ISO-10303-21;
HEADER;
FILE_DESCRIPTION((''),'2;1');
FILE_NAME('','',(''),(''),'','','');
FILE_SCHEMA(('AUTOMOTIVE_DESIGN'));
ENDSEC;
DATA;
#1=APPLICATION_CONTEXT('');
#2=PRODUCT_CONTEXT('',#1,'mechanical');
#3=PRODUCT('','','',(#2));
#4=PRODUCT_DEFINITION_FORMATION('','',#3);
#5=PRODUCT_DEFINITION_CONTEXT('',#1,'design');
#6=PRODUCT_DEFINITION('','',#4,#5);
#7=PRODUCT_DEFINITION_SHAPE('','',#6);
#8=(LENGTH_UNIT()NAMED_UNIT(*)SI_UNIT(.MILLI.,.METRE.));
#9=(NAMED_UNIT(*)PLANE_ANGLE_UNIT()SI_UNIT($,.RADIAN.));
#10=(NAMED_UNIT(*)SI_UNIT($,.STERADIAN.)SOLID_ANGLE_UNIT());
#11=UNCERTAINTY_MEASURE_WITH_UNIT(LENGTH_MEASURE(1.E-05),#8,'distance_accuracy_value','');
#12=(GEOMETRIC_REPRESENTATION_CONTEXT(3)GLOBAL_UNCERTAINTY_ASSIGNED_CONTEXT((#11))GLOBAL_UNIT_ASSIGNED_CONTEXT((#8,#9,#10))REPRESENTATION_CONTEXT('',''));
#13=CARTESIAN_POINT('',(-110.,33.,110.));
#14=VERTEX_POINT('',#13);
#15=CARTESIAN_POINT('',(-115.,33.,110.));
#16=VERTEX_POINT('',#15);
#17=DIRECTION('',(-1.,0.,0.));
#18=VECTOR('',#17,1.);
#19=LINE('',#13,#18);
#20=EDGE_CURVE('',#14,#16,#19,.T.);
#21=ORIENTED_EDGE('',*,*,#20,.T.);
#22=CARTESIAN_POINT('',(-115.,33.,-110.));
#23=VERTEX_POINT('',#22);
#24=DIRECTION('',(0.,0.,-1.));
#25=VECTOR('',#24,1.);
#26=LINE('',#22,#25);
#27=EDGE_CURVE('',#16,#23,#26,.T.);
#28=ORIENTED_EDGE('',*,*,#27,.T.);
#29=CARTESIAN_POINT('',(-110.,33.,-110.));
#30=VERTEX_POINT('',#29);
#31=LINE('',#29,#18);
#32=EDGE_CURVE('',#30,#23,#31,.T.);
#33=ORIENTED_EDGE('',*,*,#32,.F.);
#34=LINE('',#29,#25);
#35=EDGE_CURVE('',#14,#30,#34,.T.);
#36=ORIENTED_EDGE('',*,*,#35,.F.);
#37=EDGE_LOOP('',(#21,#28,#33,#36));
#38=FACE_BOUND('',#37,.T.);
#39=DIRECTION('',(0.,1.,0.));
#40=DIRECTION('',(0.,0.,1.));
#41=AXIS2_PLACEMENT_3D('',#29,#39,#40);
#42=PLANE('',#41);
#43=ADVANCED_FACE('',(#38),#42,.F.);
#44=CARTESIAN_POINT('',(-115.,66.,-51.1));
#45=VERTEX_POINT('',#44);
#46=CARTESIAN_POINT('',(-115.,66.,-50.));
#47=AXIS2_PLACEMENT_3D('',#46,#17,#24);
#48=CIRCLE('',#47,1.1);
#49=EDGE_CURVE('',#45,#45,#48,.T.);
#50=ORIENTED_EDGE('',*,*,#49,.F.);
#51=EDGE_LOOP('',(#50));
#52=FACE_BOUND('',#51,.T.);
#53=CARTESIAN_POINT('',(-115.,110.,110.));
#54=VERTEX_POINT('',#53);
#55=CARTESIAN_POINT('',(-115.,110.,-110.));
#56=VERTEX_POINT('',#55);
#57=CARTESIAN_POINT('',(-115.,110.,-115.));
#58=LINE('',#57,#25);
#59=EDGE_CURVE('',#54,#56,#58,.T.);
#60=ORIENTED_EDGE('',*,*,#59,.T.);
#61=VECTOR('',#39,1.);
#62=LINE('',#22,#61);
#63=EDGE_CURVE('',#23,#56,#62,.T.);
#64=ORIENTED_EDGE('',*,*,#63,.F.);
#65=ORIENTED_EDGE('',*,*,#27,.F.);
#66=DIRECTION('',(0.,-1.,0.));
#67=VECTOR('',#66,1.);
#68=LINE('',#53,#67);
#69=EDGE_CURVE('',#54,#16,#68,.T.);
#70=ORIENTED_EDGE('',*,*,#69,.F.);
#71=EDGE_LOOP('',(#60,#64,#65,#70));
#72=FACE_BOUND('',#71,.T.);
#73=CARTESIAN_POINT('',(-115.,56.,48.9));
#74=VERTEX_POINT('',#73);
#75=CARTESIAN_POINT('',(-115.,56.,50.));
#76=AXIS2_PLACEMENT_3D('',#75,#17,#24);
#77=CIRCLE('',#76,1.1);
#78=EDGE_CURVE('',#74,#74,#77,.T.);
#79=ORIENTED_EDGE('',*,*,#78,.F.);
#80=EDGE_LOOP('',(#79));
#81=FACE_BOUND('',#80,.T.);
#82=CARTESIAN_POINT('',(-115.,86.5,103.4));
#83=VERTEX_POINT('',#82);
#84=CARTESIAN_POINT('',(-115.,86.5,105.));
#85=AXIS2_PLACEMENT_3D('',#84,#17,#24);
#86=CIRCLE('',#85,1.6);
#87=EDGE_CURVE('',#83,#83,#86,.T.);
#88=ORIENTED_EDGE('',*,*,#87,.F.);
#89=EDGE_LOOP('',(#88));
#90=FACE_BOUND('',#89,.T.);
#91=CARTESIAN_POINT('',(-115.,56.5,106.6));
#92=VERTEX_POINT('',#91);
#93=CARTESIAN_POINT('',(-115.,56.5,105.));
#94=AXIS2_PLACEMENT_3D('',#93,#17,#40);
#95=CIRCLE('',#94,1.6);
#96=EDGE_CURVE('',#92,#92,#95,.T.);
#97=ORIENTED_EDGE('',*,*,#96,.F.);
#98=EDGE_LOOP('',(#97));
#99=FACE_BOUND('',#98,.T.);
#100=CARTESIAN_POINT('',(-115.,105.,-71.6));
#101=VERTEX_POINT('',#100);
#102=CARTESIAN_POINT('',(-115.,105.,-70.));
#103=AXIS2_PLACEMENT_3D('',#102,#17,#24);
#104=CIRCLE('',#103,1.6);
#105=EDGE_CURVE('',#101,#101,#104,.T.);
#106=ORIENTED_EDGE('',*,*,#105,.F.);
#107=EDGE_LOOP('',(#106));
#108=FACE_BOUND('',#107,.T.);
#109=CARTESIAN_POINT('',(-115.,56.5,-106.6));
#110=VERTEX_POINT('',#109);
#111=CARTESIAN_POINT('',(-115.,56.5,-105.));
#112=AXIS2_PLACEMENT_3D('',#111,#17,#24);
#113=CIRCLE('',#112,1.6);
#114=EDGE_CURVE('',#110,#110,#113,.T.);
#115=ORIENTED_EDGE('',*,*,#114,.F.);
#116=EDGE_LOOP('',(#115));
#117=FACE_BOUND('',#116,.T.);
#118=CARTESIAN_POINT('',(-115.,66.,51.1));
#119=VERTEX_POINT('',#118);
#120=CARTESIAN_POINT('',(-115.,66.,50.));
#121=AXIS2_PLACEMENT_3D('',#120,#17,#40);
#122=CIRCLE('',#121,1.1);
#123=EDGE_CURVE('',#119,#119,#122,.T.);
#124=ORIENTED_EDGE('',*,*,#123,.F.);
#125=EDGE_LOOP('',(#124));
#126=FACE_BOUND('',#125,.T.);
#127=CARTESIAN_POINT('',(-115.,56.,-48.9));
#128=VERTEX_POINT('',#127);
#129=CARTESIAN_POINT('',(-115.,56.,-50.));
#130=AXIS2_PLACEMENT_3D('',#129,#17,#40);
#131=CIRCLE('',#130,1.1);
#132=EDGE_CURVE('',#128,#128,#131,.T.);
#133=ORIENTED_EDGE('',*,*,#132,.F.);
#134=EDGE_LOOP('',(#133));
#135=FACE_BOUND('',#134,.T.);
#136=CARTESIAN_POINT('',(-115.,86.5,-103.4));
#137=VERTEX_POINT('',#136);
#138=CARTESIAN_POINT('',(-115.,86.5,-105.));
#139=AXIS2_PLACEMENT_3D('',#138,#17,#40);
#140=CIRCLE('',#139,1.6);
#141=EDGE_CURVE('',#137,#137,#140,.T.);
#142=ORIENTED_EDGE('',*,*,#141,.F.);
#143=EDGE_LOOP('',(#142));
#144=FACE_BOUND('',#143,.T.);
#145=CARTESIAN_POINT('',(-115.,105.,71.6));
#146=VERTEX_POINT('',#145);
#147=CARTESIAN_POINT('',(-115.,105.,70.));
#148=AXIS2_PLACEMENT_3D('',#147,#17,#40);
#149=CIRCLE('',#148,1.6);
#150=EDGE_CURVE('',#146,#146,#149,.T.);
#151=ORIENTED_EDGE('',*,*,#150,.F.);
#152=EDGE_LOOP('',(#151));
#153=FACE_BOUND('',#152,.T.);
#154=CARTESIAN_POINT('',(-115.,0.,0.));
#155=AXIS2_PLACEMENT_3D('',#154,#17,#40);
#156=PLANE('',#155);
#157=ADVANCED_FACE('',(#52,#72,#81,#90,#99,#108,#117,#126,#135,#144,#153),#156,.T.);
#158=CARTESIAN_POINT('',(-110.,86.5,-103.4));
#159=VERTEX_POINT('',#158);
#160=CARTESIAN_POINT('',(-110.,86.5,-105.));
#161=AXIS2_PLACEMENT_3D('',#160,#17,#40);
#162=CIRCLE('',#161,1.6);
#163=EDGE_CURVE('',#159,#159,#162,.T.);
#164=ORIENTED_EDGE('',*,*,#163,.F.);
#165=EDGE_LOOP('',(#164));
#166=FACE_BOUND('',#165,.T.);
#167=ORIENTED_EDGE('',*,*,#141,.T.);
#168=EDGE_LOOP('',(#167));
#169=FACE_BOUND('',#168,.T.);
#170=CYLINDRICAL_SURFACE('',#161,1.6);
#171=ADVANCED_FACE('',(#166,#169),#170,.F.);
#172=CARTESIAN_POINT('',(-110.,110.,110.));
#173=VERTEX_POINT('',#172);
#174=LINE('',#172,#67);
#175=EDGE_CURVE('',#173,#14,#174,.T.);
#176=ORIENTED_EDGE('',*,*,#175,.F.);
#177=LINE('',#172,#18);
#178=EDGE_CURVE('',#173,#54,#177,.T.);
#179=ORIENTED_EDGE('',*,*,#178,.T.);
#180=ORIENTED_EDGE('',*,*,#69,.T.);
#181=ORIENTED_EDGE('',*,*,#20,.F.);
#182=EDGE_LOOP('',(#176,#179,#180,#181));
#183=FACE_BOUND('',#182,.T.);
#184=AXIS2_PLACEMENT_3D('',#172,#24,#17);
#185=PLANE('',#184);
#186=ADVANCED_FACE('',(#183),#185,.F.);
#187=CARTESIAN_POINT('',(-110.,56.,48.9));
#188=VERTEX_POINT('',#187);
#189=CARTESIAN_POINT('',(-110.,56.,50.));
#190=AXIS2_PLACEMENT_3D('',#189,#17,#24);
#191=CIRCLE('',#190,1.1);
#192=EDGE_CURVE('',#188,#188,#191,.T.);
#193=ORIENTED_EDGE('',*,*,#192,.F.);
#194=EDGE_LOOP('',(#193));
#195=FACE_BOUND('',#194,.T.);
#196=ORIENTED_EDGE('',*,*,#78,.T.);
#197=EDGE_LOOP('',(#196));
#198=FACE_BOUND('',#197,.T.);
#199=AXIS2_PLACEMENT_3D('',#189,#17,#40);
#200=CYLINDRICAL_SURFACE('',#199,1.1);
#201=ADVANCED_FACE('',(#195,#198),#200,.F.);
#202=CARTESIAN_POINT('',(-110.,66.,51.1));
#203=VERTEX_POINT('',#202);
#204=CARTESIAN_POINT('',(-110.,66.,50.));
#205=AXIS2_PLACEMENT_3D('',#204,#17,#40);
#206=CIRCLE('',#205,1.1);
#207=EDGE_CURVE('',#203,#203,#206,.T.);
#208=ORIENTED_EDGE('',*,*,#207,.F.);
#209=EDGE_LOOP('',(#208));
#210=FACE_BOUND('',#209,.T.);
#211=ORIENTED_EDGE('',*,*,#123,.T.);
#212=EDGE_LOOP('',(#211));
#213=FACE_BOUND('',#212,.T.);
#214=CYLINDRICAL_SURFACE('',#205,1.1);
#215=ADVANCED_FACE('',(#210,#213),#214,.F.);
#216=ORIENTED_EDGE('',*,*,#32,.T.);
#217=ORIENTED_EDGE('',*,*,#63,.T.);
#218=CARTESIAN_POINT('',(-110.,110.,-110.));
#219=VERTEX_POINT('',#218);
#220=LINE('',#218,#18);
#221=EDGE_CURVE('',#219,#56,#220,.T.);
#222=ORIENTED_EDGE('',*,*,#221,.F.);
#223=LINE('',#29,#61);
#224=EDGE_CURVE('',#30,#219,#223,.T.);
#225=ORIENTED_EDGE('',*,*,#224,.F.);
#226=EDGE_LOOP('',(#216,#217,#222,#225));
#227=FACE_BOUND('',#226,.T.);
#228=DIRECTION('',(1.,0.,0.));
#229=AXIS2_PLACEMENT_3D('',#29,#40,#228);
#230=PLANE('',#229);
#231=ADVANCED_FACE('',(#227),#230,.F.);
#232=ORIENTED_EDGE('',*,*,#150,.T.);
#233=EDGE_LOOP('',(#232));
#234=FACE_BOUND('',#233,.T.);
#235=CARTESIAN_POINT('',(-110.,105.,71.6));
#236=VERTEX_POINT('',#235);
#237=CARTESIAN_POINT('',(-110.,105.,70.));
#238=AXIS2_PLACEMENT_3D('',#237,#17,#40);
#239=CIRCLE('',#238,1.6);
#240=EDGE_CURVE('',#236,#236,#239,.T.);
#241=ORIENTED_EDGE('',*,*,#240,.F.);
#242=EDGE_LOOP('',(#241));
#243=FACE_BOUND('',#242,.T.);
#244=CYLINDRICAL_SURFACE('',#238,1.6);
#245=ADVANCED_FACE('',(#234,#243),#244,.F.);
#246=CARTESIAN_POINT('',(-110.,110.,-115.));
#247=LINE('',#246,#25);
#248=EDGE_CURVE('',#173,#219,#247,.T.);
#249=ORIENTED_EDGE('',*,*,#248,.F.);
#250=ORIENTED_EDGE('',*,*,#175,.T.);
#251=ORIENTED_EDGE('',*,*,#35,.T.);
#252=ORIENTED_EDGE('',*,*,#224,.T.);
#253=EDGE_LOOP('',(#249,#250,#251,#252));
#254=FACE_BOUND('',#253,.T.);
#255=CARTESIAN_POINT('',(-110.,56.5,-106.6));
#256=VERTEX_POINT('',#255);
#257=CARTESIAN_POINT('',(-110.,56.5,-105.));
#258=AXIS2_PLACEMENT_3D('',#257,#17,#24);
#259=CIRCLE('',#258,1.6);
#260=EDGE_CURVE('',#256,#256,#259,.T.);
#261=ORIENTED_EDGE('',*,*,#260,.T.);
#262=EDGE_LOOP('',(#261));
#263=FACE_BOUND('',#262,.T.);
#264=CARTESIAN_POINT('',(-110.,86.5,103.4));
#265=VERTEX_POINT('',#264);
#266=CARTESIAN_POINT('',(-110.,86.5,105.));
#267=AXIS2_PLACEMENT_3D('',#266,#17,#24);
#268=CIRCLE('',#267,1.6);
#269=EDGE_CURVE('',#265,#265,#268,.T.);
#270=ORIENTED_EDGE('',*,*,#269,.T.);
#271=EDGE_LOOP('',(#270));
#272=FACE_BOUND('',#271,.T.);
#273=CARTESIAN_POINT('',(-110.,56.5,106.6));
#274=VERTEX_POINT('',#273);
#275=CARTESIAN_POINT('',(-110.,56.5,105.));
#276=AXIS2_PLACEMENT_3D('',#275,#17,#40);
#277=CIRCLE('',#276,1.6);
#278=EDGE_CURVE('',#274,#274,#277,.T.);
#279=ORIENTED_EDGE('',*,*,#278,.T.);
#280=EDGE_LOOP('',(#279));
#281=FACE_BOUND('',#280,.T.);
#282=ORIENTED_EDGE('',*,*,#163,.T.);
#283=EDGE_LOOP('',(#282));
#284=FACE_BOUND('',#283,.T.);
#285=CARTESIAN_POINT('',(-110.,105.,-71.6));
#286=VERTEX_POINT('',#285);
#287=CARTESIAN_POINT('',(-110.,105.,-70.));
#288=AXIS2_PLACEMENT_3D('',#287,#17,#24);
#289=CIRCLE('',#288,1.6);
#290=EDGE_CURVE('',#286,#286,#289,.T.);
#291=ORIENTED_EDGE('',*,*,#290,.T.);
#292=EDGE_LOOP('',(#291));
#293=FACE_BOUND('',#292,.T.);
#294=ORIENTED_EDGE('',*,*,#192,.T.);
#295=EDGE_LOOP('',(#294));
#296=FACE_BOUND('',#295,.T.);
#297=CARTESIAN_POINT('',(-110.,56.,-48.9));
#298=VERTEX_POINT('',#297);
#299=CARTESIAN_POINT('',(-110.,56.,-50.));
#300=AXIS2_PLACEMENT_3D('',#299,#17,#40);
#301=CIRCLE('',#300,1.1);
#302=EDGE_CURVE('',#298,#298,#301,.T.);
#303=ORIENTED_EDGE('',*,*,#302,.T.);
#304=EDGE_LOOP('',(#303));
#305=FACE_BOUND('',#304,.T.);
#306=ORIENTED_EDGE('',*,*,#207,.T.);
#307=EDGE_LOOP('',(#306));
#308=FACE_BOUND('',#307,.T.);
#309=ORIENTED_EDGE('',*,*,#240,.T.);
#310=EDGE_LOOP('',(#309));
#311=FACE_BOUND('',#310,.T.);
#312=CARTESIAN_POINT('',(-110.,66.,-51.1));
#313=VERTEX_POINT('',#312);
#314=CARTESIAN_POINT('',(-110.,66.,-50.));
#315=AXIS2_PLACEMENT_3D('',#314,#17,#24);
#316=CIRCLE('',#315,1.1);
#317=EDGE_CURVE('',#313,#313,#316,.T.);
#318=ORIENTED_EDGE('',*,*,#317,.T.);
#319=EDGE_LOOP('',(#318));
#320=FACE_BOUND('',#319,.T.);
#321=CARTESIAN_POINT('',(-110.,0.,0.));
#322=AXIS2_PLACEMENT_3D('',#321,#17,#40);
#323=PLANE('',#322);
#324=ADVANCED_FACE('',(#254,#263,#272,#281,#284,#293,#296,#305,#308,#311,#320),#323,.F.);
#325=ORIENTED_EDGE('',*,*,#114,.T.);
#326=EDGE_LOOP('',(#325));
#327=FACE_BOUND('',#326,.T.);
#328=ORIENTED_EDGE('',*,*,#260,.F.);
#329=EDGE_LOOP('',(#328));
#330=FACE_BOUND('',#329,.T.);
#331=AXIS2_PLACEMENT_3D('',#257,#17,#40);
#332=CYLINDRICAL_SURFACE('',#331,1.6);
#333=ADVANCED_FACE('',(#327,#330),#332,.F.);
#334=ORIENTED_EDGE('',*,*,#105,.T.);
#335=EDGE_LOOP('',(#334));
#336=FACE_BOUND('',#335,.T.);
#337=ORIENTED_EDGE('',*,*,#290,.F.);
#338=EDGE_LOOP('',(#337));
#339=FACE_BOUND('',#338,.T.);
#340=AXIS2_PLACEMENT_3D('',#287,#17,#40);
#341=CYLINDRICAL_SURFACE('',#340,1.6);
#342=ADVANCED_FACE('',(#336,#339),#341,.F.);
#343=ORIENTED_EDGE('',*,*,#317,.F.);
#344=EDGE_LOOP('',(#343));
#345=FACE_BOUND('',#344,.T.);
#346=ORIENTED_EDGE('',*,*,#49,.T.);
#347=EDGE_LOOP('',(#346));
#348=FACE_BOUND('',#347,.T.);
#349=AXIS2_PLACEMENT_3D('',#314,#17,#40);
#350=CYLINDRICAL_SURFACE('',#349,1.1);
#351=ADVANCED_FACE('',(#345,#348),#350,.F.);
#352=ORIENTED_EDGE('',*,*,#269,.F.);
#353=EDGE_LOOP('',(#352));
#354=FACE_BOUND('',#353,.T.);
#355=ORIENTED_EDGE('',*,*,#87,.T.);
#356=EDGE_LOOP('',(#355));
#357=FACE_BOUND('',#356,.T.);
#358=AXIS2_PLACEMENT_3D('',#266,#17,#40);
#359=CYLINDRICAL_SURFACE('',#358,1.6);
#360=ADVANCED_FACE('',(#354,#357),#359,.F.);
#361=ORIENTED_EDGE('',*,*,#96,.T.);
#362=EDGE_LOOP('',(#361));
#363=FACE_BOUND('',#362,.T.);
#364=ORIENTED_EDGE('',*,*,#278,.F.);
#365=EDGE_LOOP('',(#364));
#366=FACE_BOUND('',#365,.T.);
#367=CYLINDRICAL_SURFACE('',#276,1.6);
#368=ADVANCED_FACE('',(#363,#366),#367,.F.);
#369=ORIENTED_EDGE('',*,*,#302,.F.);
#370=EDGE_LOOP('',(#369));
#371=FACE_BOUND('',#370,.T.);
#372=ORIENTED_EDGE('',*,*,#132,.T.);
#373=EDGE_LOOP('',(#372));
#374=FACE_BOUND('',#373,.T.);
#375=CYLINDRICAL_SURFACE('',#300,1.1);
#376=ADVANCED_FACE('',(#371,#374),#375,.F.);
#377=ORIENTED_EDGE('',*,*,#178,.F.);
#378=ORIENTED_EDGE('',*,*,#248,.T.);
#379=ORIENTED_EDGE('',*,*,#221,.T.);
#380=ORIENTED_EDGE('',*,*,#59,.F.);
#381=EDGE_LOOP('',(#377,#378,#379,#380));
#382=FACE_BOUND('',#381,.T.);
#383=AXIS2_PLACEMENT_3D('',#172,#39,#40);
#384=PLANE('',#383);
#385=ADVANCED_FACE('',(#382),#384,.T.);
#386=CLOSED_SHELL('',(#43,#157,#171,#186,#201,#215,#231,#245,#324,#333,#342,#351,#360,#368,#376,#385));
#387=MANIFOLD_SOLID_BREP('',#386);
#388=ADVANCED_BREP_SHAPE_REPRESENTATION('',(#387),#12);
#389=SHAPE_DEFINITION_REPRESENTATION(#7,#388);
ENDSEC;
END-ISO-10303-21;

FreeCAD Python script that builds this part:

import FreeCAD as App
import Part
import Sketcher
Q = App.Units.Quantity


def edges_at(feature, points):
    """Names of the edges that pass closest to the given points."""
    edges = feature.Shape.Edges
    near = lambda p: min(range(len(edges)), key=lambda i: edges[i].distToShape(Part.Vertex(*p))[0])
    return sorted({f"Edge{near(p) + 1}" for p in points})

doc = App.newDocument("Part")
params = doc.addObject("Spreadsheet::Sheet", "Params")
for row, (alias, value) in enumerate([
    ("sketch1_width", "110 mm"),
    ("sketch1_height", "5 mm"),
    ("pad1_length", "120 mm"),
    ("pad1_length2", "110 mm"),
    ("sketch2_width", "110 mm"),
    ("sketch2_height", "5 mm"),
    ("pad2_length", "120 mm"),
    ("pad2_length2", "110 mm"),
    ("sketch3_width", "37 mm"),
    ("sketch3_height", "5 mm"),
    ("pad3_length", "50 mm"),
    ("sketch4_width", "5 mm"),
    ("sketch4_height", "220 mm"),
    ("pad4_length", "50 mm"),
    ("sketch5_width", "73 mm"),
    ("sketch5_height", "230 mm"),
    ("pad5_length", "5 mm"),
    ("sketch6_length", "5 mm"),
    ("sketch7_height", "110 mm"),
    ("sketch7_length", "5 mm"),
    ("pad6_length", "59 mm"),
    ("fillet_radius", "15 mm"),
    ("fillet2_radius", "3 mm"),
    ("sketch8_width", "348 mm"),
    ("sketch8_width2", "328 mm"),
    ("sketch8_height", "227 mm"),
    ("sketch8_height2", "207 mm"),
    ("pad7_length", "5 mm"),
    ("pad8_length", "5 mm"),
    ("pad9_length", "5 mm"),
    ("pad10_length", "165.048773 mm"),
    ("sketch12_width", "110 mm"),
    ("sketch12_width2", "77 mm"),
    ("sketch12_height", "230 mm"),
    ("sketch12_height2", "5 mm"),
    ("sketch13_diameter", "2.2 mm"),
    ("sketch14_diameter", "3.2 mm"),
], start=1):
    params.set(f"A{row}", alias)
    params.set(f"B{row}", "=" + value)
    params.setAlias(f"B{row}", alias)

body = doc.addObject("PartDesign::Body", "Body")

# Sketch on YZ plane
sketch1 = body.newObject("Sketcher::SketchObject", "Sketch")
sketch1.AttachmentSupport = (doc.getObject("YZ_Plane"), [""])
sketch1.MapMode = "FlatFace"
sketch1.addGeometry([
    Part.LineSegment(App.Vector(110, 115, 0), App.Vector(0, 115, 0)),
    Part.LineSegment(App.Vector(0, 115, 0), App.Vector(0, 110, 0)),
    Part.LineSegment(App.Vector(0, 110, 0), App.Vector(110, 110, 0)),
    Part.LineSegment(App.Vector(110, 110, 0), App.Vector(110, 115, 0)),
], False)
sketch1.addConstraint([
    Sketcher.Constraint("Coincident", 0, 2, 1, 1),
    Sketcher.Constraint("Coincident", 1, 2, 2, 1),
    Sketcher.Constraint("Coincident", 2, 2, 3, 1),
    Sketcher.Constraint("Coincident", 3, 2, 0, 1),
    Sketcher.Constraint("Horizontal", 0),
    Sketcher.Constraint("Vertical", 1),
    Sketcher.Constraint("Horizontal", 2),
    Sketcher.Constraint("Vertical", 3),
    Sketcher.Constraint("PointOnObject", 0, 2, -2),
    Sketcher.Constraint("DistanceX", 0, 2, 0, 1, Q("110 mm")),
    Sketcher.Constraint("DistanceY", 1, 2, 1, 1, Q("5 mm")),
    Sketcher.Constraint("DistanceY", -1, 1, 0, 2, Q("115 mm")),
])
sketch1.setExpression("Constraints[9]", "Params.sketch1_width")
sketch1.setExpression("Constraints[10]", "Params.sketch1_height")
pad1 = body.newObject("PartDesign::Pad", "Pad")
pad1.Profile = sketch1
pad1.Type = "TwoLengths"
pad1.setExpression("Length", "Params.pad1_length")
pad1.setExpression("Length2", "Params.pad1_length2")
body2 = doc.addObject("PartDesign::Body", "Body001")

# Sketch on YZ plane
sketch2 = body2.newObject("Sketcher::SketchObject", "Sketch001")
sketch2.AttachmentSupport = (doc.getObject("YZ_Plane001"), [""])
sketch2.MapMode = "FlatFace"
sketch2.addGeometry([
    Part.LineSegment(App.Vector(110, -110, 0), App.Vector(0, -110, 0)),
    Part.LineSegment(App.Vector(0, -110, 0), App.Vector(0, -115, 0)),
    Part.LineSegment(App.Vector(0, -115, 0), App.Vector(110, -115, 0)),
    Part.LineSegment(App.Vector(110, -115, 0), App.Vector(110, -110, 0)),
], False)
sketch2.addConstraint([
    Sketcher.Constraint("Coincident", 0, 2, 1, 1),
    Sketcher.Constraint("Coincident", 1, 2, 2, 1),
    Sketcher.Constraint("Coincident", 2, 2, 3, 1),
    Sketcher.Constraint("Coincident", 3, 2, 0, 1),
    Sketcher.Constraint("Horizontal", 0),
    Sketcher.Constraint("Vertical", 1),
    Sketcher.Constraint("Horizontal", 2),
    Sketcher.Constraint("Vertical", 3),
    Sketcher.Constraint("PointOnObject", 0, 2, -2),
    Sketcher.Constraint("DistanceX", 0, 2, 0, 1, Q("110 mm")),
    Sketcher.Constraint("DistanceY", 1, 2, 1, 1, Q("5 mm")),
    Sketcher.Constraint("DistanceY", 0, 2, -1, 1, Q("110 mm")),
])
sketch2.setExpression("Constraints[9]", "Params.sketch2_width")
sketch2.setExpression("Constraints[10]", "Params.sketch2_height")
pad2 = body2.newObject("PartDesign::Pad", "Pad001")
pad2.Profile = sketch2
pad2.Type = "TwoLengths"
pad2.setExpression("Length", "Params.pad2_length")
pad2.setExpression("Length2", "Params.pad2_length2")
body.AllowCompound = True
doc.recompute()

boolean = body.newObject("PartDesign::Boolean", "Boolean")
boolean.Type = "Fuse"
boolean.addObjects([body2])

# Sketch on YZ plane
sketch3 = body.newObject("Sketcher::SketchObject", "Sketch002")
sketch3.AttachmentSupport = (doc.getObject("YZ_Plane"), [""])
sketch3.MapMode = "FlatFace"
sketch3.AttachmentOffset = App.Placement(App.Vector(0, 0, -110), App.Rotation())
sketch3.addGeometry([
    Part.LineSegment(App.Vector(37, -115, 0), App.Vector(0, -115, 0)),  # 0
    Part.LineSegment(App.Vector(0, -115, 0), App.Vector(0, -110, 0)),  # 1
    Part.LineSegment(App.Vector(0, -110, 0), App.Vector(37, -110, 0)),  # 2
    Part.LineSegment(App.Vector(37, -110, 0), App.Vector(37, -115, 0)),  # 3
    Part.LineSegment(App.Vector(37, 110, 0), App.Vector(0, 110, 0)),  # 4
    Part.LineSegment(App.Vector(0, 110, 0), App.Vector(0, 115, 0)),  # 5
    Part.LineSegment(App.Vector(0, 115, 0), App.Vector(37, 115, 0)),  # 6
    Part.LineSegment(App.Vector(37, 115, 0), App.Vector(37, 110, 0)),  # 7
], False)
sketch3.addConstraint([
    Sketcher.Constraint("Coincident", 0, 2, 1, 1),
    Sketcher.Constraint("Coincident", 1, 2, 2, 1),
    Sketcher.Constraint("Coincident", 2, 2, 3, 1),
    Sketcher.Constraint("Coincident", 3, 2, 0, 1),
    Sketcher.Constraint("Coincident", 4, 2, 5, 1),
    Sketcher.Constraint("Coincident", 5, 2, 6, 1),
    Sketcher.Constraint("Coincident", 6, 2, 7, 1),
    Sketcher.Constraint("Coincident", 7, 2, 4, 1),
    Sketcher.Constraint("Horizontal", 0),
    Sketcher.Constraint("Vertical", 1),
    Sketcher.Constraint("Horizontal", 2),
    Sketcher.Constraint("Vertical", 3),
    Sketcher.Constraint("Horizontal", 4),
    Sketcher.Constraint("Vertical", 5),
    Sketcher.Constraint("Horizontal", 6),
    Sketcher.Constraint("Vertical", 7),
    Sketcher.Constraint("Symmetric", 1, 2, 4, 2, -1, 1),
    Sketcher.Constraint("Symmetric", 0, 2, 5, 2, -1),
    Sketcher.Constraint("Vertical", 3, 2, 6, 2),
    Sketcher.Constraint("DistanceX", 0, 2, 0, 1, Q("37 mm")),
    Sketcher.Constraint("DistanceY", 1, 1, 1, 2, Q("5 mm")),
    Sketcher.Constraint("DistanceY", 0, 2, -1, 1, Q("115 mm")),
])
sketch3.setExpression("Constraints[19]", "Params.sketch3_width")
sketch3.setExpression("Constraints[20]", "Params.sketch3_height")
pad3 = body.newObject("PartDesign::Pad", "Pad002")
pad3.Profile = sketch3
pad3.setExpression("Length", "Params.pad3_length")
pad3.Reversed = True

# Sketch on YZ plane
sketch4 = body.newObject("Sketcher::SketchObject", "Sketch003")
sketch4.AttachmentSupport = (doc.getObject("YZ_Plane"), [""])
sketch4.MapMode = "FlatFace"
sketch4.AttachmentOffset = App.Placement(App.Vector(0, 0, -160), App.Rotation())
sketch4.addGeometry([
    Part.LineSegment(App.Vector(37, -110, 0), App.Vector(32, -110, 0)),
    Part.LineSegment(App.Vector(32, -110, 0), App.Vector(32, 110, 0)),
    Part.LineSegment(App.Vector(32, 110, 0), App.Vector(37, 110, 0)),
    Part.LineSegment(App.Vector(37, 110, 0), App.Vector(37, -110, 0)),
], False)
sketch4.addConstraint([
    Sketcher.Constraint("Coincident", 0, 2, 1, 1),
    Sketcher.Constraint("Coincident", 1, 2, 2, 1),
    Sketcher.Constraint("Coincident", 2, 2, 3, 1),
    Sketcher.Constraint("Coincident", 3, 2, 0, 1),
    Sketcher.Constraint("Horizontal", 0),
    Sketcher.Constraint("Vertical", 1),
    Sketcher.Constraint("Horizontal", 2),
    Sketcher.Constraint("Vertical", 3),
    Sketcher.Constraint("DistanceX", 0, 2, 0, 1, Q("5 mm")),
    Sketcher.Constraint("DistanceY", 1, 1, 1, 2, Q("220 mm")),
    Sketcher.Constraint("DistanceX", -1, 1, 0, 2, Q("32 mm")),
    Sketcher.Constraint("DistanceY", 0, 2, -1, 1, Q("110 mm")),
])
sketch4.setExpression("Constraints[8]", "Params.sketch4_width")
sketch4.setExpression("Constraints[9]", "Params.sketch4_height")
pad4 = body.newObject("PartDesign::Pad", "Pad003")
pad4.Profile = sketch4
pad4.setExpression("Length", "Params.pad4_length")

# Sketch on YZ plane
sketch5 = body.newObject("Sketcher::SketchObject", "Sketch004")
sketch5.AttachmentSupport = (doc.getObject("YZ_Plane"), [""])
sketch5.MapMode = "FlatFace"
sketch5.AttachmentOffset = App.Placement(App.Vector(0, 0, -110), App.Rotation())
sketch5.addGeometry([
    Part.LineSegment(App.Vector(110, -115, 0), App.Vector(37, -115, 0)),
    Part.LineSegment(App.Vector(37, -115, 0), App.Vector(37, 115, 0)),
    Part.LineSegment(App.Vector(37, 115, 0), App.Vector(110, 115, 0)),
    Part.LineSegment(App.Vector(110, 115, 0), App.Vector(110, -115, 0)),
], False)
sketch5.addConstraint([
    Sketcher.Constraint("Coincident", 0, 2, 1, 1),
    Sketcher.Constraint("Coincident", 1, 2, 2, 1),
    Sketcher.Constraint("Coincident", 2, 2, 3, 1),
    Sketcher.Constraint("Coincident", 3, 2, 0, 1),
    Sketcher.Constraint("Horizontal", 0),
    Sketcher.Constraint("Vertical", 1),
    Sketcher.Constraint("Horizontal", 2),
    Sketcher.Constraint("Vertical", 3),
    Sketcher.Constraint("DistanceX", 0, 2, 0, 1, Q("73 mm")),
    Sketcher.Constraint("DistanceY", 1, 1, 1, 2, Q("230 mm")),
    Sketcher.Constraint("DistanceX", -1, 1, 0, 2, Q("37 mm")),
    Sketcher.Constraint("DistanceY", 0, 2, -1, 1, Q("115 mm")),
])
sketch5.setExpression("Constraints[8]", "Params.sketch5_width")
sketch5.setExpression("Constraints[9]", "Params.sketch5_height")
pad5 = body.newObject("PartDesign::Pad", "Pad004")
pad5.Profile = sketch5
pad5.setExpression("Length", "Params.pad5_length")
pad5.Reversed = True

# Sketch on XY plane
sketch6 = body.newObject("Sketcher::SketchObject", "Sketch005")
sketch6.AttachmentSupport = (doc.getObject("XY_Plane"), [""])
sketch6.MapMode = "FlatFace"
sketch6.AttachmentOffset = App.Placement(App.Vector(0, 0, 115), App.Rotation())
sketch6.addGeometry([
    Part.LineSegment(App.Vector(120, 110, 0), App.Vector(116.464466, 106.464466, 0)),
    Part.LineSegment(App.Vector(116.464466, 106.464466, 0), App.Vector(120, 102.928932, 0)),
    Part.LineSegment(App.Vector(120, 102.928932, 0), App.Vector(120, 110, 0)),
], False)
sketch6.addConstraint([
    Sketcher.Constraint("Coincident", 0, 2, 1, 1),
    Sketcher.Constraint("Coincident", 1, 2, 2, 1),
    Sketcher.Constraint("Coincident", 2, 2, 0, 1),
    Sketcher.Constraint("Vertical", 2),
    Sketcher.Constraint("Perpendicular", 0, 1),
    Sketcher.Constraint("Equal", 0, 1),
    Sketcher.Constraint("Distance", 0, Q("5 mm")),
    Sketcher.Constraint("DistanceX", -1, 1, 1, 2, Q("120 mm")),
    Sketcher.Constraint("DistanceY", -1, 1, 2, 2, Q("110 mm")),
])
sketch6.setExpression("Constraints[6]", "Params.sketch6_length")
pocket1 = body.newObject("PartDesign::Pocket", "Pocket")
pocket1.Profile = sketch6
pocket1.Type = "ThroughAll"

# Sketch on XY plane
sketch7 = body.newObject("Sketcher::SketchObject", "Sketch006")
sketch7.AttachmentSupport = (doc.getObject("XY_Plane"), [""])
sketch7.MapMode = "FlatFace"
sketch7.AttachmentOffset = App.Placement(App.Vector(0, 0, 115), App.Rotation())
sketch7.addGeometry([
    Part.LineSegment(App.Vector(120, 110, 0), App.Vector(111.464466, 110, 0)),  # 0
    Part.LineSegment(App.Vector(111.464466, 110, 0), App.Vector(111.464466, 0, 0)),  # 1
    Part.LineSegment(App.Vector(111.464466, 0, 0), App.Vector(120, 0, 0)),  # 2
    Part.LineSegment(App.Vector(120, 0, 0), App.Vector(120, 102.928932, 0)),  # 3
    Part.LineSegment(App.Vector(120, 102.928932, 0), App.Vector(116.464466, 106.464466, 0)),  # 4
    Part.LineSegment(App.Vector(116.464466, 106.464466, 0), App.Vector(120, 110, 0)),  # 5
], False)
sketch7.addConstraint([
    Sketcher.Constraint("Coincident", 0, 2, 1, 1),
    Sketcher.Constraint("Coincident", 1, 2, 2, 1),
    Sketcher.Constraint("Coincident", 2, 2, 3, 1),
    Sketcher.Constraint("Coincident", 3, 2, 4, 1),
    Sketcher.Constraint("Coincident", 4, 2, 5, 1),
    Sketcher.Constraint("Coincident", 5, 2, 0, 1),
    Sketcher.Constraint("Horizontal", 0),
    Sketcher.Constraint("Vertical", 1),
    Sketcher.Constraint("Horizontal", 2),
    Sketcher.Constraint("Vertical", 3),
    Sketcher.Constraint("PointOnObject", 1, 2, -1),
    Sketcher.Constraint("Perpendicular", 4, 5),
    Sketcher.Constraint("Vertical", 3, 2, 5, 2),
    Sketcher.Constraint("Equal", 4, 5),
    Sketcher.Constraint("DistanceY", 1, 2, 1, 1, Q("110 mm")),
    Sketcher.Constraint("Distance", 4, Q("5 mm")),
    Sketcher.Constraint("DistanceX", -1, 1, 2, 2, Q("120 mm")),
    Sketcher.Constraint("DistanceX", 0, 2, 4, 2, Q("5 mm")),
])
sketch7.setExpression("Constraints[14]", "Params.sketch7_height")
sketch7.setExpression("Constraints[15]", "Params.sketch7_length")
pad6 = body.newObject("PartDesign::Pad", "Pad005")
pad6.Profile = sketch7
pad6.setExpression("Length", "Params.pad6_length")
doc.recompute()

mirrored = body.newObject("PartDesign::Mirrored", "Mirrored")
mirrored.Originals = [pad6]
mirrored.MirrorPlane = (doc.getObject("XY_Plane"), [""])
body.Tip = mirrored
doc.recompute()

fillet = body.newObject("PartDesign::Fillet", "Fillet")
fillet.Base = (mirrored, edges_at(mirrored, [(111.464, 55, 115), (111.464, 55, -115)]))
fillet.setExpression("Radius", "Params.fillet_radius")
doc.recompute()

fillet2 = body.newObject("PartDesign::Fillet", "Fillet001")
fillet2.Base = (fillet, edges_at(fillet, [(111.464, 55, 174), (111.464, 55, -174)]))
fillet2.setExpression("Radius", "Params.fillet2_radius")
body3 = doc.addObject("PartDesign::Body", "Body002")

# Sketch on an angled plane
sketch8 = body3.newObject("Sketcher::SketchObject", "Sketch007")
sketch8.Placement = App.Placement(App.Vector(115, 115, 0), App.Rotation(App.Vector(0, 0, 1), App.Vector(-0.707106781, 0.707106781, 0), App.Vector(-0.707106781, -0.707106781, 0), "ZXY"))
sketch8.addGeometry([
    Part.LineSegment(App.Vector(-174, -7.071068, 0), App.Vector(-174, -234.071068, 0)),  # 0
    Part.LineSegment(App.Vector(-174, -234.071068, 0), App.Vector(174, -234.071068, 0)),  # 1
    Part.LineSegment(App.Vector(174, -234.071068, 0), App.Vector(174, -7.071068, 0)),  # 2
    Part.LineSegment(App.Vector(174, -7.071068, 0), App.Vector(-174, -7.071068, 0)),  # 3
    Part.LineSegment(App.Vector(164, -224.071068, 0), App.Vector(-164, -224.071068, 0)),  # 4
    Part.LineSegment(App.Vector(-164, -224.071068, 0), App.Vector(-164, -17.071068, 0)),  # 5
    Part.LineSegment(App.Vector(-164, -17.071068, 0), App.Vector(164, -17.071068, 0)),  # 6
    Part.LineSegment(App.Vector(164, -17.071068, 0), App.Vector(164, -224.071068, 0)),  # 7
], False)
sketch8.addConstraint([
    Sketcher.Constraint("Coincident", 0, 2, 1, 1),
    Sketcher.Constraint("Coincident", 1, 2, 2, 1),
    Sketcher.Constraint("Coincident", 2, 2, 3, 1),
    Sketcher.Constraint("Coincident", 3, 2, 0, 1),
    Sketcher.Constraint("Coincident", 4, 2, 5, 1),
    Sketcher.Constraint("Coincident", 5, 2, 6, 1),
    Sketcher.Constraint("Coincident", 6, 2, 7, 1),
    Sketcher.Constraint("Coincident", 7, 2, 4, 1),
    Sketcher.Constraint("Vertical", 0),
    Sketcher.Constraint("Horizontal", 1),
    Sketcher.Constraint("Vertical", 2),
    Sketcher.Constraint("Horizontal", 3),
    Sketcher.Constraint("Horizontal", 4),
    Sketcher.Constraint("Vertical", 5),
    Sketcher.Constraint("Horizontal", 6),
    Sketcher.Constraint("Vertical", 7),
    Sketcher.Constraint("DistanceX", 1, 1, 1, 2, Q("348 mm")),
    Sketcher.Constraint("DistanceX", 4, 2, 4, 1, Q("328 mm")),
    Sketcher.Constraint("DistanceY", 0, 2, 0, 1, Q("227 mm")),
    Sketcher.Constraint("DistanceY", 5, 1, 5, 2, Q("207 mm")),
    Sketcher.Constraint("DistanceX", 0, 2, -1, 1, Q("174 mm")),
    Sketcher.Constraint("DistanceX", 4, 2, -1, 1, Q("164 mm")),
    Sketcher.Constraint("DistanceY", 0, 2, 4, 2, Q("10 mm")),
    Sketcher.Constraint("DistanceY", 0, 2, -1, 1, Q("234.071068 mm")),
])
sketch8.setExpression("Constraints[16]", "Params.sketch8_width")
sketch8.setExpression("Constraints[17]", "Params.sketch8_width2")
sketch8.setExpression("Constraints[18]", "Params.sketch8_height")
sketch8.setExpression("Constraints[19]", "Params.sketch8_height2")
pad7 = body3.newObject("PartDesign::Pad", "Pad006")
pad7.Profile = sketch8
pad7.setExpression("Length", "Params.pad7_length")
body4 = doc.addObject("PartDesign::Body", "Body003")

# Sketch on XY plane
sketch9 = body4.newObject("Sketcher::SketchObject", "Sketch008")
sketch9.AttachmentSupport = (doc.getObject("XY_Plane003"), [""])
sketch9.MapMode = "FlatFace"
sketch9.AttachmentOffset = App.Placement(App.Vector(0, 0, 174), App.Rotation())
sketch9.addGeometry([
    Part.LineSegment(App.Vector(120, 0, 0), App.Vector(222.928932, 0, 0)),
    Part.LineSegment(App.Vector(222.928932, 0, 0), App.Vector(120, 102.928932, 0)),
    Part.LineSegment(App.Vector(120, 102.928932, 0), App.Vector(120, 0, 0)),
], False)
sketch9.addConstraint([
    Sketcher.Constraint("Coincident", 0, 2, 1, 1),
    Sketcher.Constraint("Coincident", 1, 2, 2, 1),
    Sketcher.Constraint("Coincident", 2, 2, 0, 1),
    Sketcher.Constraint("Horizontal", 0),
    Sketcher.Constraint("Vertical", 2),
    Sketcher.Constraint("PointOnObject", 0, 2, -1),
    Sketcher.Constraint("Equal", 0, 2),
    Sketcher.Constraint("DistanceX", -1, 1, 1, 2, Q("120 mm")),
    Sketcher.Constraint("Distance", 1, Q("145.563492 mm")),
])
pad8 = body4.newObject("PartDesign::Pad", "Pad007")
pad8.Profile = sketch9
pad8.setExpression("Length", "Params.pad8_length")
pad8.Reversed = True
body5 = doc.addObject("PartDesign::Body", "Body004")

# Sketch on XY plane
sketch10 = body5.newObject("Sketcher::SketchObject", "Sketch009")
sketch10.AttachmentSupport = (doc.getObject("XY_Plane004"), [""])
sketch10.MapMode = "FlatFace"
sketch10.AttachmentOffset = App.Placement(App.Vector(0, 0, -174), App.Rotation())
sketch10.addGeometry([
    Part.LineSegment(App.Vector(120, 0, 0), App.Vector(120, 102.928932, 0)),
    Part.LineSegment(App.Vector(120, 102.928932, 0), App.Vector(222.928932, 0, 0)),
    Part.LineSegment(App.Vector(222.928932, 0, 0), App.Vector(120, 0, 0)),
], False)
sketch10.addConstraint([
    Sketcher.Constraint("Coincident", 0, 2, 1, 1),
    Sketcher.Constraint("Coincident", 1, 2, 2, 1),
    Sketcher.Constraint("Coincident", 2, 2, 0, 1),
    Sketcher.Constraint("Vertical", 0),
    Sketcher.Constraint("Horizontal", 2),
    Sketcher.Constraint("PointOnObject", 1, 2, -1),
    Sketcher.Constraint("Equal", 2, 0),
    Sketcher.Constraint("DistanceX", -1, 1, 0, 2, Q("120 mm")),
    Sketcher.Constraint("Distance", 1, Q("145.563492 mm")),
])
pad9 = body5.newObject("PartDesign::Pad", "Pad008")
pad9.Profile = sketch10
pad9.setExpression("Length", "Params.pad9_length")
body6 = doc.addObject("PartDesign::Body", "Body005")
body6.AllowCompound = True

# Sketch on XZ plane
sketch11 = body6.newObject("Sketcher::SketchObject", "Sketch010")
sketch11.AttachmentSupport = (doc.getObject("XZ_Plane005"), [""])
sketch11.MapMode = "FlatFace"
sketch11.AttachmentOffset = App.Placement(App.Vector(0, 0, -110), App.Rotation())
sketch11.addGeometry([
    Part.LineSegment(App.Vector(-110, -193.761158, 0), App.Vector(-110, 200.602059, 0)),  # 0
    Part.LineSegment(App.Vector(-110, 200.602059, 0), App.Vector(365.223312, 200.602059, 0)),  # 1
    Part.LineSegment(App.Vector(365.223312, 200.602059, 0), App.Vector(365.223312, -193.761158, 0)),  # 2
    Part.LineSegment(App.Vector(365.223312, -193.761158, 0), App.Vector(-110, -193.761158, 0)),  # 3
    Part.LineSegment(App.Vector(-217.087253, -193.761158, 0), App.Vector(-217.087253, 200.602059, 0)),  # 4
    Part.LineSegment(App.Vector(-217.087253, 200.602059, 0), App.Vector(-115, 200.602059, 0)),  # 5
    Part.LineSegment(App.Vector(-115, 200.602059, 0), App.Vector(-115, -193.761158, 0)),  # 6
    Part.LineSegment(App.Vector(-115, -193.761158, 0), App.Vector(-217.087253, -193.761158, 0)),  # 7
], False)
sketch11.addConstraint([
    Sketcher.Constraint("Coincident", 0, 2, 1, 1),
    Sketcher.Constraint("Coincident", 1, 2, 2, 1),
    Sketcher.Constraint("Coincident", 2, 2, 3, 1),
    Sketcher.Constraint("Coincident", 3, 2, 0, 1),
    Sketcher.Constraint("Coincident", 4, 2, 5, 1),
    Sketcher.Constraint("Coincident", 5, 2, 6, 1),
    Sketcher.Constraint("Coincident", 6, 2, 7, 1),
    Sketcher.Constraint("Coincident", 7, 2, 4, 1),
    Sketcher.Constraint("Vertical", 0),
    Sketcher.Constraint("Horizontal", 1),
    Sketcher.Constraint("Vertical", 2),
    Sketcher.Constraint("Horizontal", 3),
    Sketcher.Constraint("Vertical", 4),
    Sketcher.Constraint("Horizontal", 5),
    Sketcher.Constraint("Vertical", 6),
    Sketcher.Constraint("Horizontal", 7),
    Sketcher.Constraint("Horizontal", 1, 2, 4, 2),
    Sketcher.Constraint("Horizontal", 3, 2, 6, 2),
    Sketcher.Constraint("DistanceX", 0, 2, -1, 1, Q("110 mm")),
    Sketcher.Constraint("DistanceX", 5, 2, -1, 1, Q("115 mm")),
    Sketcher.Constraint("DistanceX", 1, 1, 1, 2, Q("475.223312 mm")),
    Sketcher.Constraint("DistanceX", 5, 1, 5, 2, Q("102.087253 mm")),
    Sketcher.Constraint("DistanceY", 0, 1, 0, 2, Q("394.363217 mm")),
    Sketcher.Constraint("DistanceY", -1, 1, 0, 2, Q("200.602059 mm")),
])
pad10 = body6.newObject("PartDesign::Pad", "Pad009")
pad10.Profile = sketch11
pad10.setExpression("Length", "Params.pad10_length")
doc.recompute()

body7 = doc.addObject("PartDesign::Body", "Body006")
body7.BaseFeature = body6
boolean2 = body.newObject("PartDesign::Boolean", "Boolean001")
boolean2.Type = "Cut"
boolean2.addObjects([body7])
doc.recompute()

# Sketch on YZ plane
sketch12 = body.newObject("Sketcher::SketchObject", "Sketch011")
sketch12.AttachmentSupport = (doc.getObject("YZ_Plane"), [""])
sketch12.MapMode = "FlatFace"
sketch12.AttachmentOffset = App.Placement(App.Vector(0, 0, -115), App.Rotation())
sketch12.addGeometry([
    Part.LineSegment(App.Vector(0, -115, 0), App.Vector(0, 115, 0)),  # 0
    Part.LineSegment(App.Vector(0, 115, 0), App.Vector(110, 115, 0)),  # 1
    Part.LineSegment(App.Vector(110, 115, 0), App.Vector(110, 110, 0)),  # 2
    Part.LineSegment(App.Vector(110, 110, 0), App.Vector(33, 110, 0)),  # 3
    Part.LineSegment(App.Vector(33, 110, 0), App.Vector(33, -110, 0)),  # 4
    Part.LineSegment(App.Vector(33, -110, 0), App.Vector(110, -110, 0)),  # 5
    Part.LineSegment(App.Vector(110, -110, 0), App.Vector(110, -115, 0)),  # 6
    Part.LineSegment(App.Vector(110, -115, 0), App.Vector(0, -115, 0)),  # 7
], False)
sketch12.addConstraint([
    Sketcher.Constraint("Coincident", 0, 2, 1, 1),
    Sketcher.Constraint("Coincident", 1, 2, 2, 1),
    Sketcher.Constraint("Coincident", 2, 2, 3, 1),
    Sketcher.Constraint("Coincident", 3, 2, 4, 1),
    Sketcher.Constraint("Coincident", 4, 2, 5, 1),
    Sketcher.Constraint("Coincident", 5, 2, 6, 1),
    Sketcher.Constraint("Coincident", 6, 2, 7, 1),
    Sketcher.Constraint("Coincident", 7, 2, 0, 1),
    Sketcher.Constraint("Vertical", 0),
    Sketcher.Constraint("Horizontal", 1),
    Sketcher.Constraint("Vertical", 2),
    Sketcher.Constraint("Horizontal", 3),
    Sketcher.Constraint("Vertical", 4),
    Sketcher.Constraint("Horizontal", 5),
    Sketcher.Constraint("Vertical", 6),
    Sketcher.Constraint("Horizontal", 7),
    Sketcher.Constraint("Symmetric", 0, 2, 7, 2, -1, 1),
    Sketcher.Constraint("Symmetric", 2, 2, 5, 2, -1),
    Sketcher.Constraint("DistanceX", 1, 1, 1, 2, Q("110 mm")),
    Sketcher.Constraint("DistanceX", 3, 2, 3, 1, Q("77 mm")),
    Sketcher.Constraint("DistanceY", 0, 1, 0, 2, Q("230 mm")),
    Sketcher.Constraint("DistanceY", 2, 2, 2, 1, Q("5 mm")),
])
sketch12.setExpression("Constraints[18]", "Params.sketch12_width")
sketch12.setExpression("Constraints[19]", "Params.sketch12_width2")
sketch12.setExpression("Constraints[20]", "Params.sketch12_height")
sketch12.setExpression("Constraints[21]", "Params.sketch12_height2")
pocket2 = body.newObject("PartDesign::Pocket", "Pocket001")
pocket2.Profile = sketch12
pocket2.Type = "ThroughAll"
pocket2.Reversed = True

# Sketch on YZ plane
sketch13 = body.newObject("Sketcher::SketchObject", "Sketch012")
sketch13.AttachmentSupport = (doc.getObject("YZ_Plane"), [""])
sketch13.MapMode = "FlatFace"
sketch13.AttachmentOffset = App.Placement(App.Vector(0, 0, -115), App.Rotation())
sketch13.addGeometry([
    Part.Circle(App.Vector(66, 50, 0), App.Vector(0, 0, 1), 1.1),
    Part.Circle(App.Vector(56, 50, 0), App.Vector(0, 0, 1), 1.1),
    Part.Circle(App.Vector(56, -50, 0), App.Vector(0, 0, 1), 1.1),
    Part.Circle(App.Vector(66, -50, 0), App.Vector(0, 0, 1), 1.1),
], False)
sketch13.addConstraint([
    Sketcher.Constraint("Equal", 0, 1),
    Sketcher.Constraint("Equal", 1, 2),
    Sketcher.Constraint("Equal", 2, 3),
    Sketcher.Constraint("Symmetric", 1, 3, 2, 3, -1),
    Sketcher.Constraint("Symmetric", 0, 3, 3, 3, -1),
    Sketcher.Constraint("Horizontal", 0, 3, 1, 3),
    Sketcher.Constraint("Diameter", 0, Q("2.2 mm")),
    Sketcher.Constraint("DistanceX", -1, 1, 0, 3, Q("66 mm")),
    Sketcher.Constraint("DistanceY", -1, 1, 0, 3, Q("50 mm")),
    Sketcher.Constraint("DistanceX", -1, 1, 1, 3, Q("56 mm")),
])
sketch13.setExpression("Constraints[6]", "Params.sketch13_diameter")
pocket3 = body.newObject("PartDesign::Pocket", "Pocket002")
pocket3.Profile = sketch13
pocket3.Type = "ThroughAll"
pocket3.Reversed = True

# Sketch on YZ plane
sketch14 = body.newObject("Sketcher::SketchObject", "Sketch013")
sketch14.AttachmentSupport = (doc.getObject("YZ_Plane"), [""])
sketch14.MapMode = "FlatFace"
sketch14.AttachmentOffset = App.Placement(App.Vector(0, 0, -115), App.Rotation())
sketch14.addGeometry([
    Part.Circle(App.Vector(56.5, 105, 0), App.Vector(0, 0, 1), 1.6),  # 0
    Part.Circle(App.Vector(86.5, 105, 0), App.Vector(0, 0, 1), 1.6),  # 1
    Part.Circle(App.Vector(86.5, -105, 0), App.Vector(0, 0, 1), 1.6),  # 2
    Part.Circle(App.Vector(56.5, -105, 0), App.Vector(0, 0, 1), 1.6),  # 3
    Part.Circle(App.Vector(105, 70, 0), App.Vector(0, 0, 1), 1.6),  # 4
    Part.Circle(App.Vector(105, -70, 0), App.Vector(0, 0, 1), 1.6),  # 5
], False)
sketch14.addConstraint([
    Sketcher.Constraint("Equal", 0, 1),
    Sketcher.Constraint("Equal", 1, 2),
    Sketcher.Constraint("Equal", 2, 3),
    Sketcher.Constraint("Equal", 3, 4),
    Sketcher.Constraint("Equal", 4, 5),
    Sketcher.Constraint("Symmetric", 1, 3, 2, 3, -1),
    Sketcher.Constraint("Symmetric", 0, 3, 3, 3, -1),
    Sketcher.Constraint("Symmetric", 4, 3, 5, 3, -1),
    Sketcher.Constraint("Horizontal", 0, 3, 1, 3),
    Sketcher.Constraint("Diameter", 0, Q("3.2 mm")),
    Sketcher.Constraint("DistanceY", -1, 1, 0, 3, Q("105 mm")),
    Sketcher.Constraint("DistanceX", -1, 1, 4, 3, Q("105 mm")),
    Sketcher.Constraint("DistanceY", -1, 1, 4, 3, Q("70 mm")),
    Sketcher.Constraint("DistanceX", 0, 3, 1, 3, Q("30 mm")),
    Sketcher.Constraint("DistanceX", -1, 1, 0, 3, Q("56.5 mm")),
])
sketch14.setExpression("Constraints[9]", "Params.sketch14_diameter")
pocket4 = body.newObject("PartDesign::Pocket", "Pocket003")
pocket4.Profile = sketch14
pocket4.Type = "ThroughAll"
pocket4.Reversed = True
doc.recompute()

body8 = doc.addObject("PartDesign::Body", "Body007")
body8.BaseFeature = body6
boolean3 = body3.newObject("PartDesign::Boolean", "Boolean002")
boolean3.Type = "Cut"
boolean3.addObjects([body8])
doc.recompute()

body9 = doc.addObject("PartDesign::Body", "Body008")
body9.BaseFeature = body6
boolean4 = body4.newObject("PartDesign::Boolean", "Boolean003")
boolean4.Type = "Cut"
boolean4.addObjects([body9])
doc.recompute()

boolean5 = body5.newObject("PartDesign::Boolean", "Boolean004")
boolean5.Type = "Cut"
boolean5.addObjects([body6])

doc.recompute()
